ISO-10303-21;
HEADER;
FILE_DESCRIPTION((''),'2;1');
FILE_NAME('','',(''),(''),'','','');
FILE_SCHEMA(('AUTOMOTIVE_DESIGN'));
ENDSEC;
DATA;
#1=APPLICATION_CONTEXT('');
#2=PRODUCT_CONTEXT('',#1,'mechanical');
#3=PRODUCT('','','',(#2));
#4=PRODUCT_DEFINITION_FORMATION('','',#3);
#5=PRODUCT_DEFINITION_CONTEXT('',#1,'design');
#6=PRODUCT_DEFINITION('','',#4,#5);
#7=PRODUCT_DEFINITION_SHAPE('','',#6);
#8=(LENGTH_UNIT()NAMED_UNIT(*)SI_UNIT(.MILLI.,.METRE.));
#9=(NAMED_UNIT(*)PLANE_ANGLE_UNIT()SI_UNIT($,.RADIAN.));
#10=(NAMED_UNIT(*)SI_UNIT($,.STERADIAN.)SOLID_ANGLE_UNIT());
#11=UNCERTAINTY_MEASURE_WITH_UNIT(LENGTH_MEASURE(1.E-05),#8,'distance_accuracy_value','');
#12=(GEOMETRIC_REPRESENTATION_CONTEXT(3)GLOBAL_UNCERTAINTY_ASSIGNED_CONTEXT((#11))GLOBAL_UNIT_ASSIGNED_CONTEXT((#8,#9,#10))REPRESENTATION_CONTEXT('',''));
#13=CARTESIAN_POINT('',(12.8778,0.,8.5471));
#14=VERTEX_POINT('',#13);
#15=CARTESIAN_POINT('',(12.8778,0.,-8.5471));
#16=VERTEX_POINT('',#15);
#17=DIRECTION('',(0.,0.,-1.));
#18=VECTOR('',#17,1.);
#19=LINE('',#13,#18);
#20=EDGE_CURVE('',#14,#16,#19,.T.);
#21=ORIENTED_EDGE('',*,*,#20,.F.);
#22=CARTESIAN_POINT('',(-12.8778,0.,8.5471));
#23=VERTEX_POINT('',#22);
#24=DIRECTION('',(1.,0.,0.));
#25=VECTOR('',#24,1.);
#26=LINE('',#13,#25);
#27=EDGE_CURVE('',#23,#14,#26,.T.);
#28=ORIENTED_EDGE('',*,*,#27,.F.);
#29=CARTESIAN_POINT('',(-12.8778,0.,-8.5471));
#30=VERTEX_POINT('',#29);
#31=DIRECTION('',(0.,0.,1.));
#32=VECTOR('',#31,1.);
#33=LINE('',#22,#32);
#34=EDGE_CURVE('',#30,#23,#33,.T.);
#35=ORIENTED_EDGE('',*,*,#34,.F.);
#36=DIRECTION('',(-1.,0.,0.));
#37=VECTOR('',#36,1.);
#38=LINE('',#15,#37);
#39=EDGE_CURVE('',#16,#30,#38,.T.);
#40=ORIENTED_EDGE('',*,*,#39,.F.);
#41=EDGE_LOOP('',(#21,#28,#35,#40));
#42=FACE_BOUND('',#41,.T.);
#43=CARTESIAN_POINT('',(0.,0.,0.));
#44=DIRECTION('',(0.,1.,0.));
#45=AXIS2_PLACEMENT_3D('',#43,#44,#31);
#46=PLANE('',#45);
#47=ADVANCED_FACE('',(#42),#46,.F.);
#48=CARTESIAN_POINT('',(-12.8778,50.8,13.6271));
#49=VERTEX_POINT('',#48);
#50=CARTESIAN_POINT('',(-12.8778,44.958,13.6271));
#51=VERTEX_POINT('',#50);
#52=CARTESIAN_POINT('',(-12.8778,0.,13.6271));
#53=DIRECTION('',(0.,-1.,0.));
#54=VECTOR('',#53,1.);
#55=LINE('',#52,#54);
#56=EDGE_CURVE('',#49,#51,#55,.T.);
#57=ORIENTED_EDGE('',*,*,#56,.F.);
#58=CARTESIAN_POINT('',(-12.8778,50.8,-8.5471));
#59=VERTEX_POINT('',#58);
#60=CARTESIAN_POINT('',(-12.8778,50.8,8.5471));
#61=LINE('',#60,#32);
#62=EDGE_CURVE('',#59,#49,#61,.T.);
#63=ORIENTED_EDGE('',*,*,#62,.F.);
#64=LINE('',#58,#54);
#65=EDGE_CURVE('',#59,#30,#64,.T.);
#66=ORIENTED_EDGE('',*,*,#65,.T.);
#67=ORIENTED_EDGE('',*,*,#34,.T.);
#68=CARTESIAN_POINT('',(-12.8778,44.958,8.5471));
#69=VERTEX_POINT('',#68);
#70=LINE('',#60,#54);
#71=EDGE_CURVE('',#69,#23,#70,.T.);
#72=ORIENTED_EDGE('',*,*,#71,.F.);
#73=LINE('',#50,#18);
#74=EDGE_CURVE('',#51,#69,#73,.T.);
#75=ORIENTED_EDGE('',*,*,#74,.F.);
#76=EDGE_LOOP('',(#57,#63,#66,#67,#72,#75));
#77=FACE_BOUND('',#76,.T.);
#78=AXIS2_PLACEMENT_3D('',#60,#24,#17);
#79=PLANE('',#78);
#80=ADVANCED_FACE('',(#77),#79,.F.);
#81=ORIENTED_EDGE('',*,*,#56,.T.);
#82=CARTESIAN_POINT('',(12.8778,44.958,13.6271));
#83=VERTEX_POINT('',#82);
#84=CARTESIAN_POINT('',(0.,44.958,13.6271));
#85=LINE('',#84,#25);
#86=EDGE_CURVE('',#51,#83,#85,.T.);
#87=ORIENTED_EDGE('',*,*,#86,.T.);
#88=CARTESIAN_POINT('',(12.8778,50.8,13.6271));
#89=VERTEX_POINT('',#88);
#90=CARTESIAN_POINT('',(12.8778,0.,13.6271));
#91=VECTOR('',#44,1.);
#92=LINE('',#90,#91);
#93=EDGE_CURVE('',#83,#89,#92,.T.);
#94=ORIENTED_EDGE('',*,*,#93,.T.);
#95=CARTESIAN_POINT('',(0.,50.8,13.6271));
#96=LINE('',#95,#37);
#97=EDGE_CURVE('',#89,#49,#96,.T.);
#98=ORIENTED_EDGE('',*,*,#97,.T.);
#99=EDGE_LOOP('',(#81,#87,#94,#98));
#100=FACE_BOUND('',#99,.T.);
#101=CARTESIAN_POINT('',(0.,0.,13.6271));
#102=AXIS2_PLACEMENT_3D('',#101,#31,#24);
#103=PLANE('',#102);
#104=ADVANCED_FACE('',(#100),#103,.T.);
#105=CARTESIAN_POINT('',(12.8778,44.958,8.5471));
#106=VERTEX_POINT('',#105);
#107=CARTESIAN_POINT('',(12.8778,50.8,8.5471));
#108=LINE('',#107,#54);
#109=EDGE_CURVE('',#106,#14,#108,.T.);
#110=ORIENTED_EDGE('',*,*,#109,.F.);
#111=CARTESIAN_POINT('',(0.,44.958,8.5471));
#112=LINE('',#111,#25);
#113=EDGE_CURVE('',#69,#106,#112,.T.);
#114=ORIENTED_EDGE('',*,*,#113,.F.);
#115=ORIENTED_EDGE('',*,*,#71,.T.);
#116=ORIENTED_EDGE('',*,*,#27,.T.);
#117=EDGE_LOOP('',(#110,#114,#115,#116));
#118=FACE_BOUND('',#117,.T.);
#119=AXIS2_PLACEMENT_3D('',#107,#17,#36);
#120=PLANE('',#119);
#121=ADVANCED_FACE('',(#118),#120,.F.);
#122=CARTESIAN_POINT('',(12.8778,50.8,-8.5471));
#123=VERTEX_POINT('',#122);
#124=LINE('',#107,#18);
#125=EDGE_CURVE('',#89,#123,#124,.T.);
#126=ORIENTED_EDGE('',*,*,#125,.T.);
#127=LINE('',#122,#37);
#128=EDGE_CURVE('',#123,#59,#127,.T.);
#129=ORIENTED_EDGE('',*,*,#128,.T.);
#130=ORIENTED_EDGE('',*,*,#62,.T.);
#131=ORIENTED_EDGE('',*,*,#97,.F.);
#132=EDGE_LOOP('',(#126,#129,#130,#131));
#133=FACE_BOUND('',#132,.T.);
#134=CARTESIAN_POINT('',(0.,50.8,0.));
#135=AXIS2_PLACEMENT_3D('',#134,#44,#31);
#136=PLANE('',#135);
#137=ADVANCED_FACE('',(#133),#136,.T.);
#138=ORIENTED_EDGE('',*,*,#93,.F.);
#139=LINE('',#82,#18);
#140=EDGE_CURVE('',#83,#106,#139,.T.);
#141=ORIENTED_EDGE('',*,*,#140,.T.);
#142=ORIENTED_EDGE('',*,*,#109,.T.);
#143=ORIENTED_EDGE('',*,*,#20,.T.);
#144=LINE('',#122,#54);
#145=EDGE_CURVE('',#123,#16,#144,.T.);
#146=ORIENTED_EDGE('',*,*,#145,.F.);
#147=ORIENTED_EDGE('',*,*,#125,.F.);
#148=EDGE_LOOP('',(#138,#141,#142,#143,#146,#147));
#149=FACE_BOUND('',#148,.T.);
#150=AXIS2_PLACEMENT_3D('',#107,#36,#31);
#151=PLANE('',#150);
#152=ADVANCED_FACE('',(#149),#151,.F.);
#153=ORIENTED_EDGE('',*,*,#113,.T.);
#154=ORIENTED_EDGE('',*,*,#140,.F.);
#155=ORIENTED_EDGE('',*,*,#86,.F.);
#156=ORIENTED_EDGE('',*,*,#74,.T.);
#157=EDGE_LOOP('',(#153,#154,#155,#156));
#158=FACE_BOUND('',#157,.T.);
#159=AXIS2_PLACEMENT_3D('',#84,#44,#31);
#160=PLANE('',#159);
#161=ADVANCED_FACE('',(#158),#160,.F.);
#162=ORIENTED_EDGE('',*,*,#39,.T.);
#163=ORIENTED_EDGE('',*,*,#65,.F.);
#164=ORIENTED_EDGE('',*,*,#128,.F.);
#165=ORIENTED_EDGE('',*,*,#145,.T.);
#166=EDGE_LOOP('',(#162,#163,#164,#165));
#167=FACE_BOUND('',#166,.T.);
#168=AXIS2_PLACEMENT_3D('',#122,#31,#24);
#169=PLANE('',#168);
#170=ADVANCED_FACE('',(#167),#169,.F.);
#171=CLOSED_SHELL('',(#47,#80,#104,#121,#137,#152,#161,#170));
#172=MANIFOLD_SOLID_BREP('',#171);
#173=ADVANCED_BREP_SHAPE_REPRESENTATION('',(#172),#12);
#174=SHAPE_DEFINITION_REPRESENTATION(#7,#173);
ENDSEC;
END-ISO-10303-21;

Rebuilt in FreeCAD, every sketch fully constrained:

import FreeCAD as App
import Part
import Sketcher
Q = App.Units.Quantity


def add_polygon(sketch, points):
    """Adds a closed chain of lines whose ends are joined by coincident constraints."""
    first, n = sketch.GeometryCount, len(points)
    for a, b in zip(points, points[1:] + points[:1]):
        sketch.addGeometry(Part.LineSegment(App.Vector(*a, 0), App.Vector(*b, 0)), False)
    for i in range(n):
        sketch.addConstraint(Sketcher.Constraint("Coincident", first + i, 2, first + (i + 1) % n, 1))

doc = App.newDocument("Part")
body = doc.addObject("PartDesign::Body", "Body")

sketch1 = body.newObject("Sketcher::SketchObject", "Sketch")
sketch1.AttachmentSupport = (doc.getObject("XZ_Plane"), [""])
sketch1.MapMode = "FlatFace"
add_polygon(sketch1, [(-12.8778, -8.5471), (-12.8778, 8.5471), (12.8778, 8.5471), (12.8778, -8.5471)])
sketch1.addConstraint([
    Sketcher.Constraint("Vertical", 0),
    Sketcher.Constraint("Horizontal", 1),
    Sketcher.Constraint("Vertical", 2),
    Sketcher.Constraint("Horizontal", 3),
    Sketcher.Constraint("Symmetric", 0, 2, 2, 2, -1, 1),
    Sketcher.Constraint("DistanceX", 1, 1, 1, 2, Q("1.014 in")),
    Sketcher.Constraint("DistanceY", 0, 1, 0, 2, Q("0.673 in")),
])
pad1 = body.newObject("PartDesign::Pad", "Pad")
pad1.Profile = sketch1
pad1.Length = Q("2 in")
pad1.Reversed = True

sketch2 = body.newObject("Sketcher::SketchObject", "Sketch001")
sketch2.AttachmentSupport = (doc.getObject("XY_Plane"), [""])
sketch2.MapMode = "FlatFace"
sketch2.AttachmentOffset = App.Placement(App.Vector(0, 0, 0.3365 * 25.4), App.Rotation())
add_polygon(sketch2, [(-12.8778, 50.8), (-12.8778, 44.958), (12.8778, 44.958), (12.8778, 50.8)])
sketch2.addConstraint([
    Sketcher.Constraint("Vertical", 0),
    Sketcher.Constraint("Horizontal", 1),
    Sketcher.Constraint("Vertical", 2),
    Sketcher.Constraint("Horizontal", 3),
    Sketcher.Constraint("DistanceY", -1, 1, 2, 2, Q("2 in")),
    Sketcher.Constraint("DistanceY", 0, 2, 0, 1, Q("0.23 in")),
    Sketcher.Constraint("DistanceX", 1, 1, 1, 2, Q("1.014 in")),
    Sketcher.Constraint("DistanceX", 0, 2, -1, 1, Q("0.507 in")),
])
pad2 = body.newObject("PartDesign::Pad", "Pad001")
pad2.Profile = sketch2
pad2.Length = Q("0.2 in")

doc.recompute()
